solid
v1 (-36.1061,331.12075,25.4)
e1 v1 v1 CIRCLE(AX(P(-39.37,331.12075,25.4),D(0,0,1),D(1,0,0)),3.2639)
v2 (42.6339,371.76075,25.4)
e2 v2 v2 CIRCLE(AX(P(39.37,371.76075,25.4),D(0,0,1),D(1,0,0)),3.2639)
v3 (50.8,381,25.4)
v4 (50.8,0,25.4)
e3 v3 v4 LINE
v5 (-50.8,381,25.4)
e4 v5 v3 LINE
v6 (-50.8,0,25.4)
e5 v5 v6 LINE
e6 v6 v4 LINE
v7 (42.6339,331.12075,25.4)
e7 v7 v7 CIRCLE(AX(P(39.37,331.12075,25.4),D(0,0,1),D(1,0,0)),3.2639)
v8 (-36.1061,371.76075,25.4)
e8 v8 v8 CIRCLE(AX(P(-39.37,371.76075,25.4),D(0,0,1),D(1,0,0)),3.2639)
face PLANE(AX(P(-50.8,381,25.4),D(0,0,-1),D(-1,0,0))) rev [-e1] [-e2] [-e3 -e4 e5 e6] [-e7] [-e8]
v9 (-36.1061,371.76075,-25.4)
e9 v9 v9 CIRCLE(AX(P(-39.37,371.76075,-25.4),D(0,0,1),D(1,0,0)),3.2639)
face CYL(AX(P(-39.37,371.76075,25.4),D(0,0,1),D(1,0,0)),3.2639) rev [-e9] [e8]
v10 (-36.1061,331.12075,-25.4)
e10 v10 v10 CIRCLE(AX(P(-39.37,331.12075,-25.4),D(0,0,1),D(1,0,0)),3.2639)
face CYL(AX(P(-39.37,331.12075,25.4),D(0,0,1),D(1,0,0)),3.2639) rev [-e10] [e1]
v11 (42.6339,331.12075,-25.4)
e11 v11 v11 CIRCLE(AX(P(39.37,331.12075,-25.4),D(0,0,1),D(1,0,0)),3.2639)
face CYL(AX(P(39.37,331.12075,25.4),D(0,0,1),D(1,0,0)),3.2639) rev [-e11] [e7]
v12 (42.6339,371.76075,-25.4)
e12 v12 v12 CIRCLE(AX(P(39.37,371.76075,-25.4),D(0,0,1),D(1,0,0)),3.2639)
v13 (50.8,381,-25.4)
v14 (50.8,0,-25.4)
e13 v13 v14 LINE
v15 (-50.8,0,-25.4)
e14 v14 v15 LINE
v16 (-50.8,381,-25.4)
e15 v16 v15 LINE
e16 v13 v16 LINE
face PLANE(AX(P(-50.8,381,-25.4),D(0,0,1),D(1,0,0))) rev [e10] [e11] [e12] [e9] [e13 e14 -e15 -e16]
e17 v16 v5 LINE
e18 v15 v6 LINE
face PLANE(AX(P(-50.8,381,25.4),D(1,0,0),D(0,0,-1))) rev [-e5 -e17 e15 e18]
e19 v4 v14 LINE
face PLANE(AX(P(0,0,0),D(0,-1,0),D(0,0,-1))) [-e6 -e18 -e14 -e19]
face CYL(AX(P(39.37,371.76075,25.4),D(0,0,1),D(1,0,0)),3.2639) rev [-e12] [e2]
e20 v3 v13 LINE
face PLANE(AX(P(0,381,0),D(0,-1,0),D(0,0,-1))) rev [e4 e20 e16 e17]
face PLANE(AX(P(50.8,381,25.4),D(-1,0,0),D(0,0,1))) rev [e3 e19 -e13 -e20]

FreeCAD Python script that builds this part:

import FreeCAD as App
import Part
import Sketcher
Q = App.Units.Quantity


def add_polygon(sketch, points):
    """Adds a closed chain of lines whose ends are joined by coincident constraints."""
    first, n = sketch.GeometryCount, len(points)
    for a, b in zip(points, points[1:] + points[:1]):
        sketch.addGeometry(Part.LineSegment(App.Vector(*a, 0), App.Vector(*b, 0)), False)
    for i in range(n):
        sketch.addConstraint(Sketcher.Constraint("Coincident", first + i, 2, first + (i + 1) % n, 1))

doc = App.newDocument("Part")
body = doc.addObject("PartDesign::Body", "Body")

sketch1 = body.newObject("Sketcher::SketchObject", "Sketch")
sketch1.AttachmentSupport = (doc.getObject("XZ_Plane"), [""])
sketch1.MapMode = "FlatFace"
add_polygon(sketch1, [(-51, -25), (-51, 25), (51, 25), (51, -25)])
sketch1.addConstraint([
    Sketcher.Constraint("Vertical", 0),
    Sketcher.Constraint("Horizontal", 1),
    Sketcher.Constraint("Vertical", 2),
    Sketcher.Constraint("Horizontal", 3),
    Sketcher.Constraint("Symmetric", 0, 2, 2, 2, -1, 1),
    Sketcher.Constraint("DistanceX", 1, 1, 1, 2, Q("4 in")),
    Sketcher.Constraint("DistanceY", 0, 1, 0, 2, Q("2 in")),
])
pad1 = body.newObject("PartDesign::Pad", "Pad")
pad1.Profile = sketch1
pad1.Length = Q("15 in")
pad1.Reversed = True

sketch2 = body.newObject("Sketcher::SketchObject", "Sketch001")
sketch2.AttachmentSupport = (doc.getObject("XY_Plane"), [""])
sketch2.MapMode = "FlatFace"
sketch2.AttachmentOffset = App.Placement(App.Vector(0, 0, 1 * 25.4), App.Rotation())
sketch2.addGeometry([
    Part.Circle(App.Vector(39.4, 371.8, 0), App.Vector(0, 0, 1), 3.3),
    Part.Circle(App.Vector(39.4, 331.1, 0), App.Vector(0, 0, 1), 3.3),
    Part.Circle(App.Vector(-39.4, 331.1, 0), App.Vector(0, 0, 1), 3.3),
    Part.Circle(App.Vector(-39.4, 371.8, 0), App.Vector(0, 0, 1), 3.3),
], False)
sketch2.addConstraint([
    Sketcher.Constraint("Equal", 0, 1),
    Sketcher.Constraint("Equal", 1, 2),
    Sketcher.Constraint("Equal", 2, 3),
    Sketcher.Constraint("Symmetric", 1, 3, 2, 3, -2),
    Sketcher.Constraint("Symmetric", 0, 3, 3, 3, -2),
    Sketcher.Constraint("Vertical", 0, 3, 1, 3),
    Sketcher.Constraint("Diameter", 0, Q("0.257 in")),
    Sketcher.Constraint("DistanceY", 1, 3, 0, 3, Q("1.6 in")),
    Sketcher.Constraint("DistanceX", 2, 3, 1, 3, Q("3.1 in")),
    Sketcher.Constraint("DistanceY", -1, 1, 0, 3, Q("371.76075 mm")),
])
doc.recompute()
hole = body.newObject("PartDesign::Hole", "Hole")
hole.Profile = sketch2
hole.ThreadType = "None"
hole.Diameter = Q("0.257 in")
hole.DepthType = "ThroughAll"

doc.recompute()
